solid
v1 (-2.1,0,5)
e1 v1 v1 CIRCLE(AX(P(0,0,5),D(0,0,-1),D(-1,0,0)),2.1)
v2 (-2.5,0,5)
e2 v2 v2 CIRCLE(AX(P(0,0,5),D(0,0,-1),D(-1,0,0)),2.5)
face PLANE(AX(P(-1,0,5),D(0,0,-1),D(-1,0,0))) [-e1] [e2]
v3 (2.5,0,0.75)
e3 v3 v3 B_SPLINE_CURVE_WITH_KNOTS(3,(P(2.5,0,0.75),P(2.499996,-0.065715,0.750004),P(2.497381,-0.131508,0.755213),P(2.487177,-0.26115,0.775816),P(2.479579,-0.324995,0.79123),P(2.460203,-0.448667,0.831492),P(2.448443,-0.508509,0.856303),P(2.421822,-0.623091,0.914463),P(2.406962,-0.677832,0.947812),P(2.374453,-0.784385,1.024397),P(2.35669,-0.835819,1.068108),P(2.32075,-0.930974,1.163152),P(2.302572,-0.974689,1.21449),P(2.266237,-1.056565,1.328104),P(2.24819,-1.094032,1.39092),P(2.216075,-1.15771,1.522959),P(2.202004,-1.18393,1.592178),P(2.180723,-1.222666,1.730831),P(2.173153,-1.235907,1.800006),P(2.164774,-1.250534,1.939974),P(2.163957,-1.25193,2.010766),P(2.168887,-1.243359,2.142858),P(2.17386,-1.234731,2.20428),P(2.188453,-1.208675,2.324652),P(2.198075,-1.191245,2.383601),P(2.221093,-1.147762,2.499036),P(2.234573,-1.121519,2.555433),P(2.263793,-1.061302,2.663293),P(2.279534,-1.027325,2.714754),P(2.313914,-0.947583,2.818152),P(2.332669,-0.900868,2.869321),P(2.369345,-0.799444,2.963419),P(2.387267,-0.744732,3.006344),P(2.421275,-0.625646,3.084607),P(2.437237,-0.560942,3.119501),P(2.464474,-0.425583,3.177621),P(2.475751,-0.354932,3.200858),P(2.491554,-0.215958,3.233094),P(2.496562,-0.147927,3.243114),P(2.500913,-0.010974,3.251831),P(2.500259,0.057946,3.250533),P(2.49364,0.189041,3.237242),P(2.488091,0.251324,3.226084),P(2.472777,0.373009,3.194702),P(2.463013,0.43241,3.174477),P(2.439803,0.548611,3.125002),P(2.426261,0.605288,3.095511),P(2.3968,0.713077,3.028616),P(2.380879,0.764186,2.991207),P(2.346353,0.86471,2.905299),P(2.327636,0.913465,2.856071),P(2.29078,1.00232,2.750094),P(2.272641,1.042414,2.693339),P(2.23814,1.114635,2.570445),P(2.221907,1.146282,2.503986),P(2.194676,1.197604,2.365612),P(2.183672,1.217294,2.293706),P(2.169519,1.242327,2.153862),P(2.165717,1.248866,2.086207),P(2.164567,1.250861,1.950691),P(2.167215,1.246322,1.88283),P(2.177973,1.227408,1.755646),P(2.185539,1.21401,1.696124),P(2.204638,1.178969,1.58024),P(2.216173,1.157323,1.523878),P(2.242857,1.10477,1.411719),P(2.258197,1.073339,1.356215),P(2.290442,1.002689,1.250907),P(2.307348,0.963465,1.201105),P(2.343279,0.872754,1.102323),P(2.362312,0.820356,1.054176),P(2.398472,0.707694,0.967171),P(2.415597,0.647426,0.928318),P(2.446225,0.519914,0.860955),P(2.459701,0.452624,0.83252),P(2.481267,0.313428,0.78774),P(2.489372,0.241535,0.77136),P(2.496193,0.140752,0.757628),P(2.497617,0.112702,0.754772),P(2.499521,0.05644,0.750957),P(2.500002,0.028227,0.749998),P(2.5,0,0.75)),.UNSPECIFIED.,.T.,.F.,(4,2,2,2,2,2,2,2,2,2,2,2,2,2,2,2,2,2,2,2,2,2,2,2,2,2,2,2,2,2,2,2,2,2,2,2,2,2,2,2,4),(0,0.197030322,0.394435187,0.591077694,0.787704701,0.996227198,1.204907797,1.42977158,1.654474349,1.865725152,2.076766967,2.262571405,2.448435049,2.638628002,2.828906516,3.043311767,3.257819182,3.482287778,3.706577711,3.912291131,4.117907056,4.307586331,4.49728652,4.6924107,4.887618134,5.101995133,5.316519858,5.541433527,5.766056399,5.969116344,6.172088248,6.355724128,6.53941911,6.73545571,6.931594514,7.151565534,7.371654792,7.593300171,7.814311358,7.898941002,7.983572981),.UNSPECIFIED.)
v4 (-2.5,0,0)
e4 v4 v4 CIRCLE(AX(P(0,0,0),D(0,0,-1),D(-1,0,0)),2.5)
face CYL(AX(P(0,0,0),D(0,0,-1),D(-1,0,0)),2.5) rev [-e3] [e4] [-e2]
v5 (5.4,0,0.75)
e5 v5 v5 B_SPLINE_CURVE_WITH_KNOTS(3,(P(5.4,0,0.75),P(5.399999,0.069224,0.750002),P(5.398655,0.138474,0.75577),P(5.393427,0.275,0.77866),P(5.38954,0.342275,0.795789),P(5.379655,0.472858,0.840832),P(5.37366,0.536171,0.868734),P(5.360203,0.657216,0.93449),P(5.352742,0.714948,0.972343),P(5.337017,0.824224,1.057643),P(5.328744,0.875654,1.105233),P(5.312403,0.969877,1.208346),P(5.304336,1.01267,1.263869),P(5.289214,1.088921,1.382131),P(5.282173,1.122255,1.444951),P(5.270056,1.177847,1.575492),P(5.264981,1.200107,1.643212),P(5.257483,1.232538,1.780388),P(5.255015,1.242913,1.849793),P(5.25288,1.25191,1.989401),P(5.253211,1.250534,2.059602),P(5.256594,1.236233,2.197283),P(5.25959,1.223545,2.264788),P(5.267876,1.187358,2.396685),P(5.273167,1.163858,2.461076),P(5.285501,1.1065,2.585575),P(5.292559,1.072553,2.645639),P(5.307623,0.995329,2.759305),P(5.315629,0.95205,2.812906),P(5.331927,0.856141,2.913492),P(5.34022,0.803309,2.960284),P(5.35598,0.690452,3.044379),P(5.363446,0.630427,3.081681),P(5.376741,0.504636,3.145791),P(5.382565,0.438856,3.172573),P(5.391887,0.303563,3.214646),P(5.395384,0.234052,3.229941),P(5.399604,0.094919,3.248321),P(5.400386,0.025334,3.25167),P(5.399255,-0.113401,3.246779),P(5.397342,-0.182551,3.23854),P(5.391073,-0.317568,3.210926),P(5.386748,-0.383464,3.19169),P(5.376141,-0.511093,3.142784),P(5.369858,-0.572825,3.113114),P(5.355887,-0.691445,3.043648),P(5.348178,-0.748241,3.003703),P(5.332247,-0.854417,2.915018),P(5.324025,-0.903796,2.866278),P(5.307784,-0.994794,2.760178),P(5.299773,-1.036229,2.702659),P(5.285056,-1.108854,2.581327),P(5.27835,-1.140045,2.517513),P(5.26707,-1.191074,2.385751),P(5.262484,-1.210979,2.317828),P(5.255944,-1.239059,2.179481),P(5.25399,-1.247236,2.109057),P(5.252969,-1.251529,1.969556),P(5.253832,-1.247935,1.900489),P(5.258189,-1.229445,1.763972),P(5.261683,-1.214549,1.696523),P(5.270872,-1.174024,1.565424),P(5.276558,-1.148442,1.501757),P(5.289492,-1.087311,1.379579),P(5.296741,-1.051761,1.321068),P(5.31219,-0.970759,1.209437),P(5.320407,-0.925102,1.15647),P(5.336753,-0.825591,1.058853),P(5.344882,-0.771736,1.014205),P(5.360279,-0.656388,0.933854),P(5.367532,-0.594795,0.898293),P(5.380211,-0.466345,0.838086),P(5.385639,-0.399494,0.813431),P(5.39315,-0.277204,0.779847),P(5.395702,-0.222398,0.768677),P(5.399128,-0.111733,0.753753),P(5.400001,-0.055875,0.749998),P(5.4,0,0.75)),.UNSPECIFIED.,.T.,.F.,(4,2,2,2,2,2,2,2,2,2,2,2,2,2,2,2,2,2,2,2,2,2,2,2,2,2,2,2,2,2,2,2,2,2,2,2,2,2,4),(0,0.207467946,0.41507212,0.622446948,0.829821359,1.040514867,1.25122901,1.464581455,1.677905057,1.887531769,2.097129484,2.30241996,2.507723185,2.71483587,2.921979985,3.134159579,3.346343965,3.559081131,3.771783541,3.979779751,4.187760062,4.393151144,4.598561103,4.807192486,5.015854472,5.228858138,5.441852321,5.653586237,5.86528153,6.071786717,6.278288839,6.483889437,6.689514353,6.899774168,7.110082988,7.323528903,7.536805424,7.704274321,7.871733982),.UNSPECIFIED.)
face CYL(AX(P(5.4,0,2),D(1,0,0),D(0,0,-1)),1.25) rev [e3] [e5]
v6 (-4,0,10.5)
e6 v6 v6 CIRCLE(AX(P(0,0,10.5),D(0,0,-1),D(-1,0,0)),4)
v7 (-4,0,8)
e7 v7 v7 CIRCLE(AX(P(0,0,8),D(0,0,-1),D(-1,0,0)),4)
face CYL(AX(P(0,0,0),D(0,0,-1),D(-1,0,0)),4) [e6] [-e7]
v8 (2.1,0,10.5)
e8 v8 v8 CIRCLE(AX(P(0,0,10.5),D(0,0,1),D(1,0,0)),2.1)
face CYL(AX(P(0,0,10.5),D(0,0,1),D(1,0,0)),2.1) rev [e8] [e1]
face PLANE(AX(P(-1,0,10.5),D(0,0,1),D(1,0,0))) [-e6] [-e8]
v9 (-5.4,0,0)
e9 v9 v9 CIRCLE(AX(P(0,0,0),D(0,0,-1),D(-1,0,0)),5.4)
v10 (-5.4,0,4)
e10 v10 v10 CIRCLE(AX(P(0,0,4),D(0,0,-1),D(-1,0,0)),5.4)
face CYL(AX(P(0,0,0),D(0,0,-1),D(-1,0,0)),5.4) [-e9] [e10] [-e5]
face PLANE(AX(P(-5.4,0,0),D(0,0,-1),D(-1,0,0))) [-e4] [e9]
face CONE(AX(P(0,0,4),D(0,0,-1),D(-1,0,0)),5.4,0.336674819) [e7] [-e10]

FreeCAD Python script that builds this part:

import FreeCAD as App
import Part
import Sketcher


def add_polygon(sketch, points):
    """Adds a closed chain of lines whose ends are joined by coincident constraints."""
    first, n = sketch.GeometryCount, len(points)
    for a, b in zip(points, points[1:] + points[:1]):
        sketch.addGeometry(Part.LineSegment(App.Vector(*a, 0), App.Vector(*b, 0)), False)
    for i in range(n):
        sketch.addConstraint(Sketcher.Constraint("Coincident", first + i, 2, first + (i + 1) % n, 1))

doc = App.newDocument("Part")
body = doc.addObject("PartDesign::Body", "Body")

# Sketch on XZ plane
sketch1 = body.newObject("Sketcher::SketchObject", "Sketch")
sketch1.AttachmentSupport = (doc.getObject("XZ_Plane"), [""])
sketch1.MapMode = "FlatFace"
add_polygon(sketch1, [(-4, 10.5), (-1, 10.5), (-1, 5), (-2.5, 5), (-2.5, 0), (-5.4, 0), (-5.4, 4), (-4, 8)])  # lines 0-7
sketch1.addConstraint(Sketcher.Constraint("Horizontal", 0))
sketch1.addConstraint(Sketcher.Constraint("Vertical", 1))
sketch1.addConstraint(Sketcher.Constraint("Horizontal", 2))
sketch1.addConstraint(Sketcher.Constraint("Vertical", 3))
sketch1.addConstraint(Sketcher.Constraint("Horizontal", 4))
sketch1.addConstraint(Sketcher.Constraint("Vertical", 5))
sketch1.addConstraint(Sketcher.Constraint("Vertical", 7))
sketch1.addConstraint(Sketcher.Constraint("PointOnObject", 3, 2, -1))
sketch1.addConstraint(Sketcher.Constraint("DistanceX", 0, 1, 0, 2, 3.0))
sketch1.addConstraint(Sketcher.Constraint("DistanceY", 3, 2, 3, 1, 5.0))
sketch1.addConstraint(Sketcher.Constraint("DistanceY", 5, 1, 5, 2, 4.0))
sketch1.addConstraint(Sketcher.Constraint("DistanceX", 2, 2, 2, 1, 1.5))
sketch1.addConstraint(Sketcher.Constraint("DistanceX", 4, 2, 4, 1, 2.9))
sketch1.addConstraint(Sketcher.Constraint("DistanceY", 1, 2, 1, 1, 5.5))
sketch1.addConstraint(Sketcher.Constraint("DistanceY", 7, 1, 7, 2, 2.5))
sketch1.addConstraint(Sketcher.Constraint("DistanceX", 0, 2, -1, 1, 1.0))
revolution = body.newObject("PartDesign::Revolution", "Revolution")
revolution.Profile = sketch1
revolution.ReferenceAxis = (sketch1, ["V_Axis"])
revolution.Angle = 360

# Sketch on XY plane
sketch2 = body.newObject("Sketcher::SketchObject", "Sketch001")
sketch2.AttachmentSupport = (doc.getObject("XY_Plane"), [""])
sketch2.MapMode = "FlatFace"
sketch2.AttachmentOffset = App.Placement(App.Vector(0, 0, 10.5), App.Rotation())
sketch2.addGeometry(Part.Circle(App.Vector(0, 0, 0), App.Vector(0, 0, 1), 2.1), False)
sketch2.addConstraint(Sketcher.Constraint("Coincident", 0, 3, -1, 1))
sketch2.addConstraint(Sketcher.Constraint("Diameter", 0, 4.2))
doc.recompute()
hole = body.newObject("PartDesign::Hole", "Hole")
hole.Profile = sketch2
hole.ThreadType = "None"
hole.Diameter = 4.2
hole.DepthType = "ThroughAll"

# Sketch on YZ plane
sketch3 = body.newObject("Sketcher::SketchObject", "Sketch002")
sketch3.AttachmentSupport = (doc.getObject("YZ_Plane"), [""])
sketch3.MapMode = "FlatFace"
sketch3.AttachmentOffset = App.Placement(App.Vector(0, 0, 5.4), App.Rotation())
sketch3.addGeometry(Part.Circle(App.Vector(0, 2, 0), App.Vector(0, 0, 1), 1.2), False)
sketch3.addConstraint(Sketcher.Constraint("PointOnObject", 0, 3, -2))
sketch3.addConstraint(Sketcher.Constraint("Diameter", 0, 2.5))
sketch3.addConstraint(Sketcher.Constraint("DistanceY", -1, 1, 0, 3, 2.0))
pocket1 = body.newObject("PartDesign::Pocket", "Pocket")
pocket1.Profile = sketch3
pocket1.Type = "UpToFirst"

doc.recompute()
